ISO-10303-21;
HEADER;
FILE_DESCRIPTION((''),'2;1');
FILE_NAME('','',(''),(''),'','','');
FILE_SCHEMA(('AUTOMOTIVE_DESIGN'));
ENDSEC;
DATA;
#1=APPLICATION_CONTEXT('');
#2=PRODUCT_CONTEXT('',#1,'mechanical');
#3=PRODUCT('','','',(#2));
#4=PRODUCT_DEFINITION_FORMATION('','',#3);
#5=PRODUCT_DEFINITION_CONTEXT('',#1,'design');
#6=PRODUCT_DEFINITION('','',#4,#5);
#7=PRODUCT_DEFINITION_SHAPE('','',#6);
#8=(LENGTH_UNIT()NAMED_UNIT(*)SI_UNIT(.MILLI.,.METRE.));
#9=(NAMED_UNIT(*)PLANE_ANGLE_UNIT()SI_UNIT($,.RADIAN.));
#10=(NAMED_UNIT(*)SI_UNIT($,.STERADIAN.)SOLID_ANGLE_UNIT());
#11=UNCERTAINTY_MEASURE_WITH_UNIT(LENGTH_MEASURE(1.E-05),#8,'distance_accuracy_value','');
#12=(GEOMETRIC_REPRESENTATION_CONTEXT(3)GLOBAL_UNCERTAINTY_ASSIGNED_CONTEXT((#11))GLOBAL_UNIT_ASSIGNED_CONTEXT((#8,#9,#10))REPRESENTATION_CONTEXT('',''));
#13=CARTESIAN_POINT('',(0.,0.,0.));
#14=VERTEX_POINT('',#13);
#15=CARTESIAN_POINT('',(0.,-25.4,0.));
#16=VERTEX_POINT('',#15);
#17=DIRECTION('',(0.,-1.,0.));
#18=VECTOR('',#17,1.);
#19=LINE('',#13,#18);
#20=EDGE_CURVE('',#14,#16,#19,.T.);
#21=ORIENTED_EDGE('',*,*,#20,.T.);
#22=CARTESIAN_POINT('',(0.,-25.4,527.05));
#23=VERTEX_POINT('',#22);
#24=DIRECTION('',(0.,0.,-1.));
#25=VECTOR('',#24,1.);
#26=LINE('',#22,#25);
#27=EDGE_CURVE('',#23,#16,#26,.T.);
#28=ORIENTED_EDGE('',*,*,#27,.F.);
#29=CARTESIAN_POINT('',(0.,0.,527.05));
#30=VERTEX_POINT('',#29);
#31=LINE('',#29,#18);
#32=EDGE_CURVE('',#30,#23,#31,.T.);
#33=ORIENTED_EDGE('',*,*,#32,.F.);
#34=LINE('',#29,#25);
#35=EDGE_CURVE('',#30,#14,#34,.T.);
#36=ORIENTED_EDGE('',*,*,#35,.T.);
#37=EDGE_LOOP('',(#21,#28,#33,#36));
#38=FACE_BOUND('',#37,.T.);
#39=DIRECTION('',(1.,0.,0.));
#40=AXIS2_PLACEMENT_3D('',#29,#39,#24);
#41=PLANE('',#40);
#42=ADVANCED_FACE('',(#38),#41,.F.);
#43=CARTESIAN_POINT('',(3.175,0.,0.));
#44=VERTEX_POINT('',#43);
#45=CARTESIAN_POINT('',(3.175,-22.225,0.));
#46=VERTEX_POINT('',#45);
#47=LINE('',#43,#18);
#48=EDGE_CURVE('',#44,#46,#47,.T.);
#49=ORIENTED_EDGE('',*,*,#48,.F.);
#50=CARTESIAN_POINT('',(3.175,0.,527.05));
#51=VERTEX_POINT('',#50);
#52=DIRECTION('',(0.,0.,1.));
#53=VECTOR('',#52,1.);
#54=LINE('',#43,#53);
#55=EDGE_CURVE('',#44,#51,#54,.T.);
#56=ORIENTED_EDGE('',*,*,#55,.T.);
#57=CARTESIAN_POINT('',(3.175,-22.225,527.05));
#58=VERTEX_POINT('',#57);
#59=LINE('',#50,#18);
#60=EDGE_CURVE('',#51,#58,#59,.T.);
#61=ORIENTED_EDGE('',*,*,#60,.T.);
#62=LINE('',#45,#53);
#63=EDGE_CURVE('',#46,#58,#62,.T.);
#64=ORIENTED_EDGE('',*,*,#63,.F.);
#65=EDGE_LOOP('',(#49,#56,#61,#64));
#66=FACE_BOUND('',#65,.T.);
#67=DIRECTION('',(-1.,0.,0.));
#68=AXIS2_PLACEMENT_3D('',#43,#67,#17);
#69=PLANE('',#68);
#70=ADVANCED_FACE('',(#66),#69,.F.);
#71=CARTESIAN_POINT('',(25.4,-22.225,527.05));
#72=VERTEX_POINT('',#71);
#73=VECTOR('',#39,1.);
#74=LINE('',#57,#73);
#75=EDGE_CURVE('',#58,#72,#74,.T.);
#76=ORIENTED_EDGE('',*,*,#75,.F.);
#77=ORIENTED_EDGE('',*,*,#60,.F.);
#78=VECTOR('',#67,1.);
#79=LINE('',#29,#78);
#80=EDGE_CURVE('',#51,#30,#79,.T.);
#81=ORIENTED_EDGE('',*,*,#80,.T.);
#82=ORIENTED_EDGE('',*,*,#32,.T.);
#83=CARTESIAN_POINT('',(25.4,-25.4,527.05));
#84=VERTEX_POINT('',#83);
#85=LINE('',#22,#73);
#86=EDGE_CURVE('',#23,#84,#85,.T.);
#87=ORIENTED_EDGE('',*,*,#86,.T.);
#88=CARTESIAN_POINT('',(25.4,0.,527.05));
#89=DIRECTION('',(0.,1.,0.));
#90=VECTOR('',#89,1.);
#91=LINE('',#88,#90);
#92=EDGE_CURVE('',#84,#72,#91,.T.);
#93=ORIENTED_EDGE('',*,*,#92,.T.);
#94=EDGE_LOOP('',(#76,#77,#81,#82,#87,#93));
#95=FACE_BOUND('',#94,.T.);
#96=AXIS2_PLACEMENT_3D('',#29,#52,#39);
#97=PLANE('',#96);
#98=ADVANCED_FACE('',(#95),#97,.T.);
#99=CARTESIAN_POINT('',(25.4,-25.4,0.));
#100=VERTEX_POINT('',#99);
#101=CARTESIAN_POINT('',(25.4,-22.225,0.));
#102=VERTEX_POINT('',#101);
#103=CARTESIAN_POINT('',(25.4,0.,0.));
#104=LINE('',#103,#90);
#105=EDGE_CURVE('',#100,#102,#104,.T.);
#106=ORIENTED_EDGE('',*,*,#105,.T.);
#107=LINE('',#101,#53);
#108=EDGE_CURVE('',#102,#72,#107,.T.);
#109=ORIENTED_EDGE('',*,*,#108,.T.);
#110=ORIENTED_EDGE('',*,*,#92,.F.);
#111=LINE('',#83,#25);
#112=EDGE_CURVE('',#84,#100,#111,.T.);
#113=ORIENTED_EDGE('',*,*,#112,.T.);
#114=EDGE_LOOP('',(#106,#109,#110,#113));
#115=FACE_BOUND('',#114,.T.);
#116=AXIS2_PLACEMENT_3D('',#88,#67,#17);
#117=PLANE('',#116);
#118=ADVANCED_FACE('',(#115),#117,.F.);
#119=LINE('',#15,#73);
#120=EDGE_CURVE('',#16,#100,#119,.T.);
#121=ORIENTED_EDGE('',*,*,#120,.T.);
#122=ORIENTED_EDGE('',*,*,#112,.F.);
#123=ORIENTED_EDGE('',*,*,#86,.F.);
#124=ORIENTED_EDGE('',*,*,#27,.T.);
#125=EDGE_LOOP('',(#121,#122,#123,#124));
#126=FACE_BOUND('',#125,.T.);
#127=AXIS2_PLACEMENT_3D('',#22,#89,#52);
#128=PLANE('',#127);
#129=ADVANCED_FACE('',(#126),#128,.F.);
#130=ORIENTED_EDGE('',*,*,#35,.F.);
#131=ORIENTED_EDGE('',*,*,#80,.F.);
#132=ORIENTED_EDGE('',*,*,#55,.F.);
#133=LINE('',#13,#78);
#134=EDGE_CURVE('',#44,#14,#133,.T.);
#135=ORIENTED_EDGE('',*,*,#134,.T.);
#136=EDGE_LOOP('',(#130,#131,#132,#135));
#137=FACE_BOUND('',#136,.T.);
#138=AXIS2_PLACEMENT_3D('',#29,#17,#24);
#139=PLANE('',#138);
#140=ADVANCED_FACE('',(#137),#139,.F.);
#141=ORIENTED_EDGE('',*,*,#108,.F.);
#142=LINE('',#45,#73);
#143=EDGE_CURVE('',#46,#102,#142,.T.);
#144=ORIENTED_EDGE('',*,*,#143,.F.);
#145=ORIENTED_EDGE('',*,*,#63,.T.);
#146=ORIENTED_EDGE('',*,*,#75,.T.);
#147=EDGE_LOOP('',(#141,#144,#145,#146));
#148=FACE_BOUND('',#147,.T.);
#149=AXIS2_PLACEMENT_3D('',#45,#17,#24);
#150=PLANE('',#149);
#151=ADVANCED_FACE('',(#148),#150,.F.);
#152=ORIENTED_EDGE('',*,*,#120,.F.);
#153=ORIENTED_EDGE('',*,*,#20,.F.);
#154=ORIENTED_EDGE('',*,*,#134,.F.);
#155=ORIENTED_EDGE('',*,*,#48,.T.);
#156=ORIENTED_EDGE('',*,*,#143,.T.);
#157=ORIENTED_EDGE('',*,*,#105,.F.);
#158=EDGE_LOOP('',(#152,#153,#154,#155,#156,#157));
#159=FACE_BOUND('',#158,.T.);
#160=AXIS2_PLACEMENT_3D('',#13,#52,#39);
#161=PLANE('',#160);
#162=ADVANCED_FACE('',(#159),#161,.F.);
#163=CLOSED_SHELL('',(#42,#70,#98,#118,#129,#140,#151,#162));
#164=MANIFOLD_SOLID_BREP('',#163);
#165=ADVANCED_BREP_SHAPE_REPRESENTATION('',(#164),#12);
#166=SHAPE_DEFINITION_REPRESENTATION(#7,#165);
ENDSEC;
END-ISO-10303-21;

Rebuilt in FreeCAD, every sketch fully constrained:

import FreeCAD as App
import Part
import Sketcher
Q = App.Units.Quantity

doc = App.newDocument("Part")
params = doc.addObject("Spreadsheet::Sheet", "Params")
for row, (alias, value) in enumerate([
    ("sketch1_width", "1 in"),
    ("pad1_length", "20.75 in"),
    ("sketch2_width", "0.875 in"),
], start=1):
    params.set(f"A{row}", alias)
    params.set(f"B{row}", "=" + value)
    params.setAlias(f"B{row}", alias)

body = doc.addObject("PartDesign::Body", "Body")

# Sketch on XY plane
sketch1 = doc.addObject("Sketcher::SketchObject", "Sketch")
body.addObject(sketch1)
sketch1.AttachmentSupport = (doc.XY_Plane, [""])
sketch1.MapMode = "FlatFace"
sketch1.addGeometry([
    Part.LineSegment(App.Vector(0, 0, 0), App.Vector(0, -25, 0)),
    Part.LineSegment(App.Vector(0, -25, 0), App.Vector(25, -25, 0)),
    Part.LineSegment(App.Vector(25, -25, 0), App.Vector(25, 0, 0)),
    Part.LineSegment(App.Vector(25, 0, 0), App.Vector(0, 0, 0)),
], False)
sketch1.addConstraint([
    Sketcher.Constraint("Coincident", 0, 2, 1, 1),
    Sketcher.Constraint("Coincident", 1, 2, 2, 1),
    Sketcher.Constraint("Coincident", 2, 2, 3, 1),
    Sketcher.Constraint("Coincident", 3, 2, 0, 1),
    Sketcher.Constraint("Vertical", 0),
    Sketcher.Constraint("Horizontal", 1),
    Sketcher.Constraint("Vertical", 2),
    Sketcher.Constraint("Horizontal", 3),
    Sketcher.Constraint("Coincident", 3, 2, -1, 1),
    Sketcher.Constraint("Equal", 3, 0),
    Sketcher.Constraint("DistanceX", 1, 1, 1, 2, Q("1 in")),
])
sketch1.setExpression("Constraints[10]", "Params.sketch1_width")
pad1 = doc.addObject("PartDesign::Pad", "Pad")
body.addObject(pad1)
pad1.Profile = sketch1
pad1.setExpression("Length", "Params.pad1_length")

# Sketch on XY plane
sketch2 = doc.addObject("Sketcher::SketchObject", "Sketch001")
body.addObject(sketch2)
sketch2.AttachmentSupport = (doc.XY_Plane, [""])
sketch2.MapMode = "FlatFace"
sketch2.AttachmentOffset = App.Placement(App.Vector(0, 0, 20.75 * 25.4), App.Rotation())
sketch2.addGeometry([
    Part.LineSegment(App.Vector(3, 0, 0), App.Vector(3, -22, 0)),
    Part.LineSegment(App.Vector(3, -22, 0), App.Vector(25, -22, 0)),
    Part.LineSegment(App.Vector(25, -22, 0), App.Vector(25, 0, 0)),
    Part.LineSegment(App.Vector(25, 0, 0), App.Vector(3, 0, 0)),
], False)
sketch2.addConstraint([
    Sketcher.Constraint("Coincident", 0, 2, 1, 1),
    Sketcher.Constraint("Coincident", 1, 2, 2, 1),
    Sketcher.Constraint("Coincident", 2, 2, 3, 1),
    Sketcher.Constraint("Coincident", 3, 2, 0, 1),
    Sketcher.Constraint("Vertical", 0),
    Sketcher.Constraint("Horizontal", 1),
    Sketcher.Constraint("Vertical", 2),
    Sketcher.Constraint("Horizontal", 3),
    Sketcher.Constraint("PointOnObject", 2, 2, -1),
    Sketcher.Constraint("Equal", 3, 0),
    Sketcher.Constraint("DistanceX", -1, 1, 1, 2, Q("1 in")),
    Sketcher.Constraint("DistanceX", 1, 1, 1, 2, Q("0.875 in")),
])
sketch2.setExpression("Constraints[11]", "Params.sketch2_width")
pocket1 = doc.addObject("PartDesign::Pocket", "Pocket")
body.addObject(pocket1)
pocket1.Profile = sketch2
pocket1.Type = "ThroughAll"

doc.recompute()
